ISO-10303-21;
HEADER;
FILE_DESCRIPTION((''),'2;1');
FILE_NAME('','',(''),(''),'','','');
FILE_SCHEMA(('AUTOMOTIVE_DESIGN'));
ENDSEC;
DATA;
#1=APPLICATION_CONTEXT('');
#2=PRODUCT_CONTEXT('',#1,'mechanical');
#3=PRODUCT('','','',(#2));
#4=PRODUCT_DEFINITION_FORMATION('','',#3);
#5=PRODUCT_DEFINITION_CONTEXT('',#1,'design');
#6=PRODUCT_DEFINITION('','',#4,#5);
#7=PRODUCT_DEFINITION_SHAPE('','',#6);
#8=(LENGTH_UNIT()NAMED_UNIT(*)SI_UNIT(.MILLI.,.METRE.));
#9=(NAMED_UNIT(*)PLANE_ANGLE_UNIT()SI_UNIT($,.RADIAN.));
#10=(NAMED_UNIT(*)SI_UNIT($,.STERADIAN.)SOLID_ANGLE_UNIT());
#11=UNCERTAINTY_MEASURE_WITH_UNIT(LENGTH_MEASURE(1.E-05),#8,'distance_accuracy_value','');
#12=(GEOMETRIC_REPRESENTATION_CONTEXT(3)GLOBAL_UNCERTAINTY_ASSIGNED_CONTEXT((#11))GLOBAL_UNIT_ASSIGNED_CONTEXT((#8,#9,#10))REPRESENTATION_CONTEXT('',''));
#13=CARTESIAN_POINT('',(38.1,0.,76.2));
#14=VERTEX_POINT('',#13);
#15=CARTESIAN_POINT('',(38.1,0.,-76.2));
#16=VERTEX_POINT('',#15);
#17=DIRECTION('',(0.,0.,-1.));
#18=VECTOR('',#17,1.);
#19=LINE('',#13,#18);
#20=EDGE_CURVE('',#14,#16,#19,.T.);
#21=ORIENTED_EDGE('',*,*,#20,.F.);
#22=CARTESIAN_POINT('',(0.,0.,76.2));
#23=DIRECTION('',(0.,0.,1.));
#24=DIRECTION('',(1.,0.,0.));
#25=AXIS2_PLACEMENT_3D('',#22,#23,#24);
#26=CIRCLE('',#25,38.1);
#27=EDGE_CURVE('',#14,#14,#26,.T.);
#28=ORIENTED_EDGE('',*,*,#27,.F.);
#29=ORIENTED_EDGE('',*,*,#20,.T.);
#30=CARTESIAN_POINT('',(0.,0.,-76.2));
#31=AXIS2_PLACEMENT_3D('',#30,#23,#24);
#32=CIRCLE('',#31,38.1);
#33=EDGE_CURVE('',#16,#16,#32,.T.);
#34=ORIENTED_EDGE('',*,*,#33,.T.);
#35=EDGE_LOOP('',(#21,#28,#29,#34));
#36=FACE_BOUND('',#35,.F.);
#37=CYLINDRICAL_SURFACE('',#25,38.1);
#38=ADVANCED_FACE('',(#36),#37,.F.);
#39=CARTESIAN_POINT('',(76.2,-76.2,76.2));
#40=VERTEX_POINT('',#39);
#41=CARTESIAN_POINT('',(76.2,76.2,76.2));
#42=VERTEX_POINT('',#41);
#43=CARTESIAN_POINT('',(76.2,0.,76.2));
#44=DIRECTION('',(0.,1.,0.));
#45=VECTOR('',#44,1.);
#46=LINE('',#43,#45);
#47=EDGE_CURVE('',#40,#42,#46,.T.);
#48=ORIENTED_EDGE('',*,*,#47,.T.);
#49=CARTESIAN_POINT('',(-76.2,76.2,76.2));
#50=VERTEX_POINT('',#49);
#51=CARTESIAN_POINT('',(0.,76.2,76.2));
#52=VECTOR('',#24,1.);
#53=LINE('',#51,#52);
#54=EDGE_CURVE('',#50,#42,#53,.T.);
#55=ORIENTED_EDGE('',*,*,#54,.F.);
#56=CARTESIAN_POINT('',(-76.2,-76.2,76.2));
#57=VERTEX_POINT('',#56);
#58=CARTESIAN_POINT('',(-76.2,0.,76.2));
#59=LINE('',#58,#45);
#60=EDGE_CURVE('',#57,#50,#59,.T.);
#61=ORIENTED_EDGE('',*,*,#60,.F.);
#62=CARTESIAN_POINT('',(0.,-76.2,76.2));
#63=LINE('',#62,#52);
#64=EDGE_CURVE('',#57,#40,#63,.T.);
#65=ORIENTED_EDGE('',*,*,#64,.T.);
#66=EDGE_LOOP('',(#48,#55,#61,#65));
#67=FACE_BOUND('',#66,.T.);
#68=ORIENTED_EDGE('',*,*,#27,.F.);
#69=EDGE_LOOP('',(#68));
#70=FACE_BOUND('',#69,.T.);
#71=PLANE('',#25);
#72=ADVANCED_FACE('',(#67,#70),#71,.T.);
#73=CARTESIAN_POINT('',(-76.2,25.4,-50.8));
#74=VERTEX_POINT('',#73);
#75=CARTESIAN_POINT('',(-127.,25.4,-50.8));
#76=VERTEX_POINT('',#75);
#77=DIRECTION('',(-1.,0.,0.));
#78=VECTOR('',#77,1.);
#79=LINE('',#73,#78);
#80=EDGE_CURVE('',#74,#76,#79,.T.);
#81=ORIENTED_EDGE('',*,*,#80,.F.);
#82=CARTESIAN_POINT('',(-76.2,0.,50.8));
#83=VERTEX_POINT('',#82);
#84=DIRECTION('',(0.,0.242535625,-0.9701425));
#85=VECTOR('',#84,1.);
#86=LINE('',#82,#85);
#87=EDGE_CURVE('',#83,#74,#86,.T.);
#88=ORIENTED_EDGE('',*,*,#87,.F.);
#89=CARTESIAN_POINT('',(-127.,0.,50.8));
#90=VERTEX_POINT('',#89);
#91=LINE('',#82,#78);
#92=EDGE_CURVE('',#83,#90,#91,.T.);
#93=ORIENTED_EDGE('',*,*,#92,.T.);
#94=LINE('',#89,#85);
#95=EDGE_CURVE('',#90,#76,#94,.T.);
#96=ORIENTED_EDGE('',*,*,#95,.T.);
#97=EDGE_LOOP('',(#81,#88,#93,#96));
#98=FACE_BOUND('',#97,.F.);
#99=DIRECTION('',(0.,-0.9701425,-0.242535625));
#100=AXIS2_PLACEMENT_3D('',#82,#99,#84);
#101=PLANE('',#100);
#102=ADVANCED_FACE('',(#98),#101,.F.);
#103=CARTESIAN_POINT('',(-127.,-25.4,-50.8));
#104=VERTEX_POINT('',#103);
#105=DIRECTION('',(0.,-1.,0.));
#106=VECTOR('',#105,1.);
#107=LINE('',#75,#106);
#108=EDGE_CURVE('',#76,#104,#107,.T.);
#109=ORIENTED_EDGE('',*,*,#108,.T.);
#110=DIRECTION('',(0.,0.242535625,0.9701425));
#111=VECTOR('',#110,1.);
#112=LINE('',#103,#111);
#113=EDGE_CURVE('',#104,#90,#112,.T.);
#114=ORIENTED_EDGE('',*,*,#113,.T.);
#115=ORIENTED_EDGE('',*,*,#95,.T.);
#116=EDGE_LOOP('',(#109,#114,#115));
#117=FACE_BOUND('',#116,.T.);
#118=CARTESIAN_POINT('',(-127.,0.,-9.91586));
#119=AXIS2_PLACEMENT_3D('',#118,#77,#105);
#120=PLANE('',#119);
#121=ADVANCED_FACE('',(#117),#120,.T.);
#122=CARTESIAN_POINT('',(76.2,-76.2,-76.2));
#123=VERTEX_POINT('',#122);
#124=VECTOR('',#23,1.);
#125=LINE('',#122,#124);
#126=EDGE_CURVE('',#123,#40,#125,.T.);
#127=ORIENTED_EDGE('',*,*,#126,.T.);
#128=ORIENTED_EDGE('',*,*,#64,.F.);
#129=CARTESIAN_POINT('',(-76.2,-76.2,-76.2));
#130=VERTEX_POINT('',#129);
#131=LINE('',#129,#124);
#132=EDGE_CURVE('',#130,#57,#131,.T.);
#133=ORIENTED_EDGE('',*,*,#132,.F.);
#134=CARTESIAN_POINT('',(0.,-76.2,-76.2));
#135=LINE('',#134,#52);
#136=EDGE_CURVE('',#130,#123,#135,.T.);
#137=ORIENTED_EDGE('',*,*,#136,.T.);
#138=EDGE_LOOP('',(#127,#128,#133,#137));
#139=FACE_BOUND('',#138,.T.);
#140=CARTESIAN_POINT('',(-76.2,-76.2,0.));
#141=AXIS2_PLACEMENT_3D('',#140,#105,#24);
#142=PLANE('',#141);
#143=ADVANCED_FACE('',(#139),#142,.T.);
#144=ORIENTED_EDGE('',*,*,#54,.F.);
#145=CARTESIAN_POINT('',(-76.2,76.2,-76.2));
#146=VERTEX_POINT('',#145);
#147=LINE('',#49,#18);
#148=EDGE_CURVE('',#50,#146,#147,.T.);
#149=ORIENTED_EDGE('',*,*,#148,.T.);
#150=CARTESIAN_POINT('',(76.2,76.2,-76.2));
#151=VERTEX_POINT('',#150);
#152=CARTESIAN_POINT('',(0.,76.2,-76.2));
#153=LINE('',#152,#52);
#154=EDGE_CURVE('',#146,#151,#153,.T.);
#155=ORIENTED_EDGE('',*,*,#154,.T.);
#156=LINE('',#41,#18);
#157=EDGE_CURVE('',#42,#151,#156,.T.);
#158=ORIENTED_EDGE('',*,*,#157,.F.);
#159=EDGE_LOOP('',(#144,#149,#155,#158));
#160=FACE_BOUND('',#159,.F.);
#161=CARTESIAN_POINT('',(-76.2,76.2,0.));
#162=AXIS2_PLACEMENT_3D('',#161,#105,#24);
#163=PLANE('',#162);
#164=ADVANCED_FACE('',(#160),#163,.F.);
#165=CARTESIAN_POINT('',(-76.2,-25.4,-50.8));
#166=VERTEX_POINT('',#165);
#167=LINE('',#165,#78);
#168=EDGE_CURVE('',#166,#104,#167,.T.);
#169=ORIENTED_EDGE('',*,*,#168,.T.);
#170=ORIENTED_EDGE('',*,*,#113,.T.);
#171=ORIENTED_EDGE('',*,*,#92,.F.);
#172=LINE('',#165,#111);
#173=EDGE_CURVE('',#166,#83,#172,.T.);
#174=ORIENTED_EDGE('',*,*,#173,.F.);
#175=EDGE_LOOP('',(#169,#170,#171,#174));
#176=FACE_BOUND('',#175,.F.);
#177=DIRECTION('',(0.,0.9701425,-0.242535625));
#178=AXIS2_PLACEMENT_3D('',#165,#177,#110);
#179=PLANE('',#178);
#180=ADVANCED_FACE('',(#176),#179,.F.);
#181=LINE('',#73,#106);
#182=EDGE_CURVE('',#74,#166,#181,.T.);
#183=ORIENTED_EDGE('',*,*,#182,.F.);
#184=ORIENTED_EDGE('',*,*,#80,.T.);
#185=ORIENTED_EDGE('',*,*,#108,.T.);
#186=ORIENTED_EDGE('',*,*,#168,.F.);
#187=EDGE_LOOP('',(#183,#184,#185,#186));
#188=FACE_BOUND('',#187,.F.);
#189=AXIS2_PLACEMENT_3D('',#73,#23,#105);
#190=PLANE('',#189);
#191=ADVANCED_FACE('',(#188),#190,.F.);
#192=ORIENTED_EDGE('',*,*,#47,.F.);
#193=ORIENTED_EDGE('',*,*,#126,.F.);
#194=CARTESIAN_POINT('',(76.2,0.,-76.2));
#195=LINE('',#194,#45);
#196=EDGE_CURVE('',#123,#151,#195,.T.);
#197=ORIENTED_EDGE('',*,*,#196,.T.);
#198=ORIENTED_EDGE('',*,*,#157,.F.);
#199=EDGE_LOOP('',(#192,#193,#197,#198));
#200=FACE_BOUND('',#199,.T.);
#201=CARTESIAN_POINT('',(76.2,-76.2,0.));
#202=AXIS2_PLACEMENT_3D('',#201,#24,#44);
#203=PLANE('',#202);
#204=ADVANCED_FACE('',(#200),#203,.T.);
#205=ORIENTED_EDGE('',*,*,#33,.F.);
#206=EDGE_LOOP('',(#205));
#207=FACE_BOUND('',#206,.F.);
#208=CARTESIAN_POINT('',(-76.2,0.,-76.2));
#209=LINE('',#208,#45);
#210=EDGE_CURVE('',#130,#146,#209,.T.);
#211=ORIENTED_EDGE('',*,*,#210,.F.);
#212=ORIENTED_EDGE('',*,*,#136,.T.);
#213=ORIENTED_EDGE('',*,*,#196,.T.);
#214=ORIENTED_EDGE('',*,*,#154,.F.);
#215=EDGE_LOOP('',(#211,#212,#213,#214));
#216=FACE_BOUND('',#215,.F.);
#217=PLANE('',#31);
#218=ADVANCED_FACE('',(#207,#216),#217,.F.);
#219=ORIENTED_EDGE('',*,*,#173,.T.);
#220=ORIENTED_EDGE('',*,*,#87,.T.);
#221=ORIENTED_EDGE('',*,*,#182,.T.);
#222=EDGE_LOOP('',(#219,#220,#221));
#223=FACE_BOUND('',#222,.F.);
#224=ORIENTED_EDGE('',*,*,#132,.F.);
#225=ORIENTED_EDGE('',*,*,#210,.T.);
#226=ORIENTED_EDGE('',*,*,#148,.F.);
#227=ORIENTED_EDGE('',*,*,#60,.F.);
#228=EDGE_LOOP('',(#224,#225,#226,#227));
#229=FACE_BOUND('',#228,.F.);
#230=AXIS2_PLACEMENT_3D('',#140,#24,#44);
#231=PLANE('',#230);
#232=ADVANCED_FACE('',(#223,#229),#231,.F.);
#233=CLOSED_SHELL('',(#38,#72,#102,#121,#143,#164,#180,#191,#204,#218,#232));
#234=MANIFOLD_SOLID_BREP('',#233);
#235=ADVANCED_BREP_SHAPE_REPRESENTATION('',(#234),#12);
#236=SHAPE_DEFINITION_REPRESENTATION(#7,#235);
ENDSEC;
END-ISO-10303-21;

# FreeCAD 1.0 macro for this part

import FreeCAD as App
import Part
import Sketcher
Q = App.Units.Quantity


def add_polygon(sketch, points):
    """Adds a closed chain of lines whose ends are joined by coincident constraints."""
    first, n = sketch.GeometryCount, len(points)
    for a, b in zip(points, points[1:] + points[:1]):
        sketch.addGeometry(Part.LineSegment(App.Vector(*a, 0), App.Vector(*b, 0)), False)
    for i in range(n):
        sketch.addConstraint(Sketcher.Constraint("Coincident", first + i, 2, first + (i + 1) % n, 1))

doc = App.newDocument("Part")
body = doc.addObject("PartDesign::Body", "Body")

sketch1 = body.newObject("Sketcher::SketchObject", "Sketch")
sketch1.AttachmentSupport = (doc.getObject("XY_Plane"), [""])
sketch1.MapMode = "FlatFace"
add_polygon(sketch1, [(-76.2, 76.2), (-76.2, -76.2), (76.2, -76.2), (76.2, 76.2)])
sketch1.addConstraint([
    Sketcher.Constraint("Vertical", 0),
    Sketcher.Constraint("Horizontal", 1),
    Sketcher.Constraint("Vertical", 2),
    Sketcher.Constraint("Horizontal", 3),
    Sketcher.Constraint("Symmetric", 0, 2, 2, 2, -1, 1),
    Sketcher.Constraint("Equal", 3, 0),
    Sketcher.Constraint("DistanceX", 1, 1, 1, 2, Q("6 in")),
])
pad1 = body.newObject("PartDesign::Pad", "Pad")
pad1.Profile = sketch1
pad1.Length = Q("6 in")
pad1.Midplane = True

sketch2 = body.newObject("Sketcher::SketchObject", "Sketch001")
sketch2.AttachmentSupport = (doc.getObject("XY_Plane"), [""])
sketch2.MapMode = "FlatFace"
sketch2.AttachmentOffset = App.Placement(App.Vector(0, 0, 3 * 25.4), App.Rotation())
sketch2.addGeometry(Part.Circle(App.Vector(0, 0, 0), App.Vector(0, 0, 1), 38.1), False)
sketch2.addConstraint([
    Sketcher.Constraint("Coincident", 0, 3, -1, 1),
    Sketcher.Constraint("Diameter", 0, Q("3 in")),
])
pocket1 = body.newObject("PartDesign::Pocket", "Pocket")
pocket1.Profile = sketch2
pocket1.Type = "ThroughAll"

sketch3 = body.newObject("Sketcher::SketchObject", "Sketch002")
sketch3.AttachmentSupport = (doc.getObject("YZ_Plane"), [""])
sketch3.MapMode = "FlatFace"
sketch3.AttachmentOffset = App.Placement(App.Vector(0, 0, -3 * 25.4), App.Rotation())
add_polygon(sketch3, [(0, 50.8), (25.4, -50.8), (-25.4, -50.8)])
sketch3.addConstraint([
    Sketcher.Constraint("Horizontal", 1),
    Sketcher.Constraint("PointOnObject", 2, 2, -2),
    Sketcher.Constraint("Equal", 0, 2),
    Sketcher.Constraint("DistanceX", 1, 2, 1, 1, Q("2 in")),
    Sketcher.Constraint("DistanceY", 0, 2, -1, 1, Q("2 in")),
    Sketcher.Constraint("DistanceY", -1, 1, 2, 2, Q("2 in")),
])
pad2 = body.newObject("PartDesign::Pad", "Pad001")
pad2.Profile = sketch3
pad2.Length = Q("2 in")
pad2.Reversed = True

doc.recompute()
